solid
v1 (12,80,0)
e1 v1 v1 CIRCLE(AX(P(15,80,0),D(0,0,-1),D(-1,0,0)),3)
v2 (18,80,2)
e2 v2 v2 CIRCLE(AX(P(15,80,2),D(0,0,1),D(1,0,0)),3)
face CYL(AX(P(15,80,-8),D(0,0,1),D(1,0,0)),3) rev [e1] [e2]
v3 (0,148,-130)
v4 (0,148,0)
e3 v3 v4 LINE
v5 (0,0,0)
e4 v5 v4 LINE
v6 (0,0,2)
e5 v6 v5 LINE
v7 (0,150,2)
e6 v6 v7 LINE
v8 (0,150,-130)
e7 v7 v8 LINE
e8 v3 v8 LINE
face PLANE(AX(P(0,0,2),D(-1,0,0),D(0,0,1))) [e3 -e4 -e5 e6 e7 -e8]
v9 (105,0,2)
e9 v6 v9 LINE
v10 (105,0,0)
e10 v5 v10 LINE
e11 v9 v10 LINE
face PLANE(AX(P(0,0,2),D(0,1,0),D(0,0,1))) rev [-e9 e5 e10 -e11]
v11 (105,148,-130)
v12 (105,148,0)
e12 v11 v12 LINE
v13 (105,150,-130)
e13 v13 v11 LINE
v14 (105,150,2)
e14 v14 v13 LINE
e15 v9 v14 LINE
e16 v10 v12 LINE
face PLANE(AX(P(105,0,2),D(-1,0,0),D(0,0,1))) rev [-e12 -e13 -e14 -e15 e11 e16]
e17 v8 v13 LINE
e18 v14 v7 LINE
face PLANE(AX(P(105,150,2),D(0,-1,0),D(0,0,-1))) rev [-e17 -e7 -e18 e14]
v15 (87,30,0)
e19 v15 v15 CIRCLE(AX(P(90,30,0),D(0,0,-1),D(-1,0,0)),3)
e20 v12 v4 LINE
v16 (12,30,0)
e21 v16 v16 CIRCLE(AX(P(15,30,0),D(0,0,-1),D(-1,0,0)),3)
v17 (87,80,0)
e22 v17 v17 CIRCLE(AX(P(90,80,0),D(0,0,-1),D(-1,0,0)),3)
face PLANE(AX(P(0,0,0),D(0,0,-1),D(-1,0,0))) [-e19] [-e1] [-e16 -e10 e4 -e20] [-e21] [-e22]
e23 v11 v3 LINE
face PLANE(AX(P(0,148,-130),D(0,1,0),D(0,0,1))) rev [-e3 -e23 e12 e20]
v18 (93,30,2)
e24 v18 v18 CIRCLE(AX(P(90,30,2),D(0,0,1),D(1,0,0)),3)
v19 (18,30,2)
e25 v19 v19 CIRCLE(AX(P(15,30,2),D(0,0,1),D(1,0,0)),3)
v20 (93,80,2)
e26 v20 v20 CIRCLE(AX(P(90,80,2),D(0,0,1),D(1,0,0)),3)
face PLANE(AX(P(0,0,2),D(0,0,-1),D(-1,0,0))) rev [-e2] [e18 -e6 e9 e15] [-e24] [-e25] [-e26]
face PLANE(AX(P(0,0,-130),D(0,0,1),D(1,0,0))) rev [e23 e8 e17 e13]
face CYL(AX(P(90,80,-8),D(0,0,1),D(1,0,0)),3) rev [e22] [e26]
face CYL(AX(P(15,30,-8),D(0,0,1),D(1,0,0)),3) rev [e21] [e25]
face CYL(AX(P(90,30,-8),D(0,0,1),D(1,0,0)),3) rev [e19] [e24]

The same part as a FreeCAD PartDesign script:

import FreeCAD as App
import Part
import Sketcher


def add_polygon(sketch, points):
    """Adds a closed chain of lines whose ends are joined by coincident constraints."""
    first, n = sketch.GeometryCount, len(points)
    for a, b in zip(points, points[1:] + points[:1]):
        sketch.addGeometry(Part.LineSegment(App.Vector(*a, 0), App.Vector(*b, 0)), False)
    for i in range(n):
        sketch.addConstraint(Sketcher.Constraint("Coincident", first + i, 2, first + (i + 1) % n, 1))

doc = App.newDocument("Part")
params = doc.addObject("Spreadsheet::Sheet", "Params")
for row, (alias, value) in enumerate([
    ("sketch1_width", "105 mm"),
    ("sketch1_height", "150 mm"),
    ("pad1_length", "2 mm"),
    ("sketch2_width", "105 mm"),
    ("sketch2_height", "2 mm"),
    ("pad2_length", "130 mm"),
    ("sketch3_diameter", "6 mm"),
    ("pocket1_length", "10 mm"),
    ("sketch4_diameter", "6 mm"),
    ("pocket2_length", "10 mm"),
    ("sketch5_diameter", "6 mm"),
    ("pocket3_length", "10 mm"),
    ("sketch6_diameter", "6 mm"),
    ("pocket4_length", "10 mm"),
], start=1):
    params.set(f"A{row}", alias)
    params.set(f"B{row}", "=" + value)
    params.setAlias(f"B{row}", alias)

body = doc.addObject("PartDesign::Body", "Body")

# Sketch on XY plane
sketch1 = body.newObject("Sketcher::SketchObject", "Sketch")
sketch1.AttachmentSupport = (doc.getObject("XY_Plane"), [""])
sketch1.MapMode = "FlatFace"
add_polygon(sketch1, [(0, 150), (0, 0), (105, 0), (105, 150)])  # lines 0-3
sketch1.addConstraint([
    Sketcher.Constraint("Vertical", 0),
    Sketcher.Constraint("Horizontal", 1),
    Sketcher.Constraint("Vertical", 2),
    Sketcher.Constraint("Horizontal", 3),
    Sketcher.Constraint("Coincident", 0, 2, -1, 1),
    Sketcher.Constraint("DistanceX", 1, 1, 1, 2, 105.0),
    Sketcher.Constraint("DistanceY", 0, 2, 0, 1, 150.0),
])
sketch1.setExpression("Constraints[9]", "Params.sketch1_width")
sketch1.setExpression("Constraints[10]", "Params.sketch1_height")
pad1 = body.newObject("PartDesign::Pad", "Pad")
pad1.Profile = sketch1
pad1.setExpression("Length", "Params.pad1_length")

# Sketch on XY plane
sketch2 = body.newObject("Sketcher::SketchObject", "Sketch001")
sketch2.AttachmentSupport = (doc.getObject("XY_Plane"), [""])
sketch2.MapMode = "FlatFace"
add_polygon(sketch2, [(105, 150), (105, 148), (0, 148), (0, 150)])  # lines 0-3
sketch2.addConstraint([
    Sketcher.Constraint("Vertical", 0),
    Sketcher.Constraint("Horizontal", 1),
    Sketcher.Constraint("Vertical", 2),
    Sketcher.Constraint("Horizontal", 3),
    Sketcher.Constraint("PointOnObject", 1, 2, -2),
    Sketcher.Constraint("DistanceX", 1, 2, 1, 1, 105.0),
    Sketcher.Constraint("DistanceY", 0, 2, 0, 1, 2.0),
    Sketcher.Constraint("DistanceY", -1, 1, 0, 2, 148.0),
])
sketch2.setExpression("Constraints[9]", "Params.sketch2_width")
sketch2.setExpression("Constraints[10]", "Params.sketch2_height")
pad2 = body.newObject("PartDesign::Pad", "Pad001")
pad2.Profile = sketch2
pad2.setExpression("Length", "Params.pad2_length")
pad2.Reversed = True

# Sketch on XY plane
sketch3 = body.newObject("Sketcher::SketchObject", "Sketch002")
sketch3.AttachmentSupport = (doc.getObject("XY_Plane"), [""])
sketch3.MapMode = "FlatFace"
sketch3.AttachmentOffset = App.Placement(App.Vector(0, 0, 2), App.Rotation())
sketch3.addGeometry(Part.Circle(App.Vector(15, 30, 0), App.Vector(0, 0, 1), 3), False)
sketch3.addConstraint([
    Sketcher.Constraint("Diameter", 0, 6.0),
    Sketcher.Constraint("DistanceX", -1, 1, 0, 3, 15.0),
    Sketcher.Constraint("DistanceY", -1, 1, 0, 3, 30.0),
])
sketch3.setExpression("Constraints[0]", "Params.sketch3_diameter")
pocket1 = body.newObject("PartDesign::Pocket", "Pocket")
pocket1.Profile = sketch3
pocket1.setExpression("Length", "Params.pocket1_length")

# Sketch on XY plane
sketch4 = body.newObject("Sketcher::SketchObject", "Sketch003")
sketch4.AttachmentSupport = (doc.getObject("XY_Plane"), [""])
sketch4.MapMode = "FlatFace"
sketch4.AttachmentOffset = App.Placement(App.Vector(0, 0, 2), App.Rotation())
sketch4.addGeometry(Part.Circle(App.Vector(90, 30, 0), App.Vector(0, 0, 1), 3), False)
sketch4.addConstraint([
    Sketcher.Constraint("Diameter", 0, 6.0),
    Sketcher.Constraint("DistanceX", -1, 1, 0, 3, 90.0),
    Sketcher.Constraint("DistanceY", -1, 1, 0, 3, 30.0),
])
sketch4.setExpression("Constraints[0]", "Params.sketch4_diameter")
pocket2 = body.newObject("PartDesign::Pocket", "Pocket001")
pocket2.Profile = sketch4
pocket2.setExpression("Length", "Params.pocket2_length")

# Sketch on XY plane
sketch5 = body.newObject("Sketcher::SketchObject", "Sketch004")
sketch5.AttachmentSupport = (doc.getObject("XY_Plane"), [""])
sketch5.MapMode = "FlatFace"
sketch5.AttachmentOffset = App.Placement(App.Vector(0, 0, 2), App.Rotation())
sketch5.addGeometry(Part.Circle(App.Vector(15, 80, 0), App.Vector(0, 0, 1), 3), False)
sketch5.addConstraint([
    Sketcher.Constraint("Diameter", 0, 6.0),
    Sketcher.Constraint("DistanceX", -1, 1, 0, 3, 15.0),
    Sketcher.Constraint("DistanceY", -1, 1, 0, 3, 80.0),
])
sketch5.setExpression("Constraints[0]", "Params.sketch5_diameter")
pocket3 = body.newObject("PartDesign::Pocket", "Pocket002")
pocket3.Profile = sketch5
pocket3.setExpression("Length", "Params.pocket3_length")

# Sketch on XY plane
sketch6 = body.newObject("Sketcher::SketchObject", "Sketch005")
sketch6.AttachmentSupport = (doc.getObject("XY_Plane"), [""])
sketch6.MapMode = "FlatFace"
sketch6.AttachmentOffset = App.Placement(App.Vector(0, 0, 2), App.Rotation())
sketch6.addGeometry(Part.Circle(App.Vector(90, 80, 0), App.Vector(0, 0, 1), 3), False)
sketch6.addConstraint([
    Sketcher.Constraint("Diameter", 0, 6.0),
    Sketcher.Constraint("DistanceX", -1, 1, 0, 3, 90.0),
    Sketcher.Constraint("DistanceY", -1, 1, 0, 3, 80.0),
])
sketch6.setExpression("Constraints[0]", "Params.sketch6_diameter")
pocket4 = body.newObject("PartDesign::Pocket", "Pocket003")
pocket4.Profile = sketch6
pocket4.setExpression("Length", "Params.pocket4_length")

doc.recompute()
